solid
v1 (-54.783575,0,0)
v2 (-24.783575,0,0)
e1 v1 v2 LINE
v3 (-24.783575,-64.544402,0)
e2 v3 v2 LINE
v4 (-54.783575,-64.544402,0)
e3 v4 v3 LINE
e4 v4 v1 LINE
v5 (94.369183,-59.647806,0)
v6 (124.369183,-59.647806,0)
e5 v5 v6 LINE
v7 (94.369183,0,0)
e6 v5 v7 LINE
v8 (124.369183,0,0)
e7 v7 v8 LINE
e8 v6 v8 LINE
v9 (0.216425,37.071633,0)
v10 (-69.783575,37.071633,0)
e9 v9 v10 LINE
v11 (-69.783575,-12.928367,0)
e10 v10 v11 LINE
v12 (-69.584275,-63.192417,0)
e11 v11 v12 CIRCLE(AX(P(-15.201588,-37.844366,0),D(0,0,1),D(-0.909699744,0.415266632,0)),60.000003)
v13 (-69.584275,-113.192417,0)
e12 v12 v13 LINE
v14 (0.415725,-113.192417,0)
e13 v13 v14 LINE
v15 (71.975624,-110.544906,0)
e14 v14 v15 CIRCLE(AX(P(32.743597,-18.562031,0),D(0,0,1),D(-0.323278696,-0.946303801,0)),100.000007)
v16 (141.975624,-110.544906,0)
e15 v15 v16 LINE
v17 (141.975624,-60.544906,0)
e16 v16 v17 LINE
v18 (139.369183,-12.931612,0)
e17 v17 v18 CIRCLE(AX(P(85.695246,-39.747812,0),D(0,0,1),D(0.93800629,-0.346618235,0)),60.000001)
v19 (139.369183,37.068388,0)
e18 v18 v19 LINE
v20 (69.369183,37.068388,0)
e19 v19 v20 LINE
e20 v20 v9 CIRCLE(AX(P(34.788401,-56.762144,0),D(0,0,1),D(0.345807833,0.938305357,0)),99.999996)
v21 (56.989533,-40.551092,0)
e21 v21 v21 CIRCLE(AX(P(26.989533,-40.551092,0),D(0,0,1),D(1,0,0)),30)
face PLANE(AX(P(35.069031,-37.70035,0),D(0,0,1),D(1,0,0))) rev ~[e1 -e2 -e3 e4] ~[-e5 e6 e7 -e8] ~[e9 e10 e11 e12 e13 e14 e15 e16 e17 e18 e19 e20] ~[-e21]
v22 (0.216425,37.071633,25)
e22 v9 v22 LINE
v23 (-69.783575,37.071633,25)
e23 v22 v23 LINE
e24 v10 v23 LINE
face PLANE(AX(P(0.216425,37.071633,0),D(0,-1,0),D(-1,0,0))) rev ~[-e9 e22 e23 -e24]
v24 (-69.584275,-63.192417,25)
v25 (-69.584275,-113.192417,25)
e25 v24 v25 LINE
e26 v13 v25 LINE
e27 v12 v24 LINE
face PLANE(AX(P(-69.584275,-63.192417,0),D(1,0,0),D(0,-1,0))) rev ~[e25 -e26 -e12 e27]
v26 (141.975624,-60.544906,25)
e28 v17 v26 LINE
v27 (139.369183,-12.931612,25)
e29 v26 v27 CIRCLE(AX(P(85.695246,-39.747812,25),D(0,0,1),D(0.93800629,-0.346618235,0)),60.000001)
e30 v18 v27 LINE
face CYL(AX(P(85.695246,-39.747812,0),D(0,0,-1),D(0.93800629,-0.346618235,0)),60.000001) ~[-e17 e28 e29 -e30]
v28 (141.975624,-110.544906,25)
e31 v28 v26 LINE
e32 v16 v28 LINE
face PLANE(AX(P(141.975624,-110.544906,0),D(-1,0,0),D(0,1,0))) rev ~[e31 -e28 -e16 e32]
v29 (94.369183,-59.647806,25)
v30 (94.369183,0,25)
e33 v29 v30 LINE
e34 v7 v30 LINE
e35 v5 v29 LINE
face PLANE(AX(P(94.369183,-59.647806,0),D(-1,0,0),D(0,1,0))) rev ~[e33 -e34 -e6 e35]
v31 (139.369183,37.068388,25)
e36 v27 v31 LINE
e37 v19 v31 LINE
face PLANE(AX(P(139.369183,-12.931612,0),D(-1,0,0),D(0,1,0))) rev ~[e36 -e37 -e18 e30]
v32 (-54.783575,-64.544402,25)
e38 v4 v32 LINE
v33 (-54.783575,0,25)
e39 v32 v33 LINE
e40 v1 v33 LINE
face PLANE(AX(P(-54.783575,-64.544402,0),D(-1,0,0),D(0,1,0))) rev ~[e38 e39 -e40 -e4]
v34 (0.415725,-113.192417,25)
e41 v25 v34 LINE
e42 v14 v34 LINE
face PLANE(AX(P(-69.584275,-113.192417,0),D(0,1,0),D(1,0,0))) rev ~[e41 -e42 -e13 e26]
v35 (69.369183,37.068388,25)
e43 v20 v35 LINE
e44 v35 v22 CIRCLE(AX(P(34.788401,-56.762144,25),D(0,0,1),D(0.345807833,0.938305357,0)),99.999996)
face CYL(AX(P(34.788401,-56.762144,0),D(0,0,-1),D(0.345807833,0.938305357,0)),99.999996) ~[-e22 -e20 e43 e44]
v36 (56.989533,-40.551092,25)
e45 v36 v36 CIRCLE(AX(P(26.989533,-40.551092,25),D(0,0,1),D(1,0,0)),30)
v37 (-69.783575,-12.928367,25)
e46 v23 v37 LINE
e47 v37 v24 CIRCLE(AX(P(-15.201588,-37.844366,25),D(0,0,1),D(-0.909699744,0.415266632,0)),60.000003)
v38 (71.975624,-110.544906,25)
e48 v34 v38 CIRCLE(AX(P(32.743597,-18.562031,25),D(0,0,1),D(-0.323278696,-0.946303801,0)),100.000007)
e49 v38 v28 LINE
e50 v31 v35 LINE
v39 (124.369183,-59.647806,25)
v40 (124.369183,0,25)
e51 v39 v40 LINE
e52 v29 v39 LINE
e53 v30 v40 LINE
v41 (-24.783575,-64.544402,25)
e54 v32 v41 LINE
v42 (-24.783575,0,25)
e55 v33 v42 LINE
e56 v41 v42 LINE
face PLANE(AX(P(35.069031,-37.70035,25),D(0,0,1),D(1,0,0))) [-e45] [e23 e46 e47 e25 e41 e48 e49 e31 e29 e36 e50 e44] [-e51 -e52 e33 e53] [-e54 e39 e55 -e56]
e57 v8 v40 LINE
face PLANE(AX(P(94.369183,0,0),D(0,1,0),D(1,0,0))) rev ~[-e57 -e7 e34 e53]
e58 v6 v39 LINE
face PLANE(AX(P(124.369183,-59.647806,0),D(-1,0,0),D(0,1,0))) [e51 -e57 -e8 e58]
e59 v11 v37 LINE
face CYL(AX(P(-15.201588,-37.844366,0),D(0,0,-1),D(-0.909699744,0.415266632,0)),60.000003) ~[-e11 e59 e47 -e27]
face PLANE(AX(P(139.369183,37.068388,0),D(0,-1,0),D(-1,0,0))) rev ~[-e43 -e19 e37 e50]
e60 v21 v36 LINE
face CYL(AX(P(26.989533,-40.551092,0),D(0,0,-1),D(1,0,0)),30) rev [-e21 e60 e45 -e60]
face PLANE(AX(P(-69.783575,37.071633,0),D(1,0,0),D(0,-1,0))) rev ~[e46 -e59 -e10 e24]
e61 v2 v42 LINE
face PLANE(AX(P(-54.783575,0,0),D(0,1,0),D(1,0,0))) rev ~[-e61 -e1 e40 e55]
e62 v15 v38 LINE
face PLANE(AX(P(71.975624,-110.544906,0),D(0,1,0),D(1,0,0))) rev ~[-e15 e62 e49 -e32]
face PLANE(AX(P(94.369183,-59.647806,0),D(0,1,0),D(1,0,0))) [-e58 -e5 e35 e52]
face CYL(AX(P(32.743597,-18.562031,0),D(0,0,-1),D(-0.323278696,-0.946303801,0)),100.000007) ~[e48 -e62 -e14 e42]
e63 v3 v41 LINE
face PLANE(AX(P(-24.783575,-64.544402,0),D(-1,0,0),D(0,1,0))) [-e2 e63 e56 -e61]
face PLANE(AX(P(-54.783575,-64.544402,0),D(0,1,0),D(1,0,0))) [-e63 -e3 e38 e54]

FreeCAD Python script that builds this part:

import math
import FreeCAD as App
import Part
import Sketcher

doc = App.newDocument("Part")
body = doc.addObject("PartDesign::Body", "Body")

# Sketch on XY plane
sketch1 = doc.addObject("Sketcher::SketchObject", "Sketch")
body.addObject(sketch1)
sketch1.AttachmentSupport = (doc.XY_Plane, [""])
sketch1.MapMode = "FlatFace"
sketch1.addGeometry([
    Part.LineSegment(App.Vector(0, 37, 0), App.Vector(-70, 37, 0)),  # 0
    Part.LineSegment(App.Vector(-70, 37, 0), App.Vector(-70, -13, 0)),  # 1
    Part.ArcOfCircle(Part.Circle(App.Vector(-15, -38, 0), App.Vector(0, 0, 1), 60), math.radians(155), math.radians(205)),  # 2
    Part.LineSegment(App.Vector(-70, -63, 0), App.Vector(-70, -113, 0)),  # 3
    Part.LineSegment(App.Vector(-70, -113, 0), App.Vector(0, -113, 0)),  # 4
    Part.ArcOfCircle(Part.Circle(App.Vector(33, -19, 0), App.Vector(0, 0, 1), 100), math.radians(-109), math.radians(-67)),  # 5
    Part.LineSegment(App.Vector(72, -111, 0), App.Vector(142, -111, 0)),  # 6
    Part.LineSegment(App.Vector(142, -111, 0), App.Vector(142, -61, 0)),  # 7
    Part.ArcOfCircle(Part.Circle(App.Vector(86, -40, 0), App.Vector(0, 0, 1), 60), math.radians(-20), math.radians(27)),  # 8
    Part.LineSegment(App.Vector(139, -13, 0), App.Vector(139, 37, 0)),  # 9
    Part.LineSegment(App.Vector(139, 37, 0), App.Vector(69, 37, 0)),  # 10
    Part.ArcOfCircle(Part.Circle(App.Vector(35, -57, 0), App.Vector(0, 0, 1), 100), math.radians(70), math.radians(110)),  # 11
    Part.Circle(App.Vector(27, -41, 0), App.Vector(0, 0, 1), 30),  # 12
    Part.LineSegment(App.Vector(-25, -65, 0), App.Vector(-55, -65, 0)),  # 13
    Part.LineSegment(App.Vector(-55, -65, 0), App.Vector(-55, 0, 0)),  # 14
    Part.LineSegment(App.Vector(-55, 0, 0), App.Vector(-25, 0, 0)),  # 15
    Part.LineSegment(App.Vector(-25, 0, 0), App.Vector(-25, -65, 0)),  # 16
    Part.LineSegment(App.Vector(124, -60, 0), App.Vector(94, -60, 0)),  # 17
    Part.LineSegment(App.Vector(94, -60, 0), App.Vector(94, 0, 0)),  # 18
    Part.LineSegment(App.Vector(94, 0, 0), App.Vector(124, 0, 0)),  # 19
    Part.LineSegment(App.Vector(124, 0, 0), App.Vector(124, -60, 0)),  # 20
], False)
sketch1.addConstraint([
    Sketcher.Constraint("Coincident", 0, 2, 1, 1),
    Sketcher.Constraint("Coincident", 1, 2, 2, 1),
    Sketcher.Constraint("Coincident", 2, 2, 3, 1),
    Sketcher.Constraint("Coincident", 3, 2, 4, 1),
    Sketcher.Constraint("Coincident", 4, 2, 5, 1),
    Sketcher.Constraint("Coincident", 5, 2, 6, 1),
    Sketcher.Constraint("Coincident", 6, 2, 7, 1),
    Sketcher.Constraint("Coincident", 7, 2, 8, 1),
    Sketcher.Constraint("Coincident", 8, 2, 9, 1),
    Sketcher.Constraint("Coincident", 9, 2, 10, 1),
    Sketcher.Constraint("Coincident", 10, 2, 11, 1),
    Sketcher.Constraint("Coincident", 11, 2, 0, 1),
    Sketcher.Constraint("Coincident", 13, 2, 14, 1),
    Sketcher.Constraint("Coincident", 14, 2, 15, 1),
    Sketcher.Constraint("Coincident", 15, 2, 16, 1),
    Sketcher.Constraint("Coincident", 16, 2, 13, 1),
    Sketcher.Constraint("Coincident", 17, 2, 18, 1),
    Sketcher.Constraint("Coincident", 18, 2, 19, 1),
    Sketcher.Constraint("Coincident", 19, 2, 20, 1),
    Sketcher.Constraint("Coincident", 20, 2, 17, 1),
    Sketcher.Constraint("Horizontal", 0),
    Sketcher.Constraint("Vertical", 1),
    Sketcher.Constraint("Vertical", 3),
    Sketcher.Constraint("Horizontal", 4),
    Sketcher.Constraint("Horizontal", 6),
    Sketcher.Constraint("Vertical", 7),
    Sketcher.Constraint("Vertical", 9),
    Sketcher.Constraint("Horizontal", 10),
    Sketcher.Constraint("Horizontal", 13),
    Sketcher.Constraint("Vertical", 14),
    Sketcher.Constraint("Horizontal", 15),
    Sketcher.Constraint("Vertical", 16),
    Sketcher.Constraint("Horizontal", 17),
    Sketcher.Constraint("Vertical", 18),
    Sketcher.Constraint("Horizontal", 19),
    Sketcher.Constraint("Vertical", 20),
    Sketcher.Constraint("PointOnObject", 14, 2, -1),
    Sketcher.Constraint("PointOnObject", 18, 2, -1),
    Sketcher.Constraint("Equal", 0, 4),
    Sketcher.Constraint("Equal", 4, 6),
    Sketcher.Constraint("Equal", 6, 10),
    Sketcher.Constraint("Equal", 15, 17),
    Sketcher.Constraint("Equal", 1, 3),
    Sketcher.Constraint("Equal", 3, 7),
    Sketcher.Constraint("Equal", 7, 9),
    Sketcher.Constraint("Diameter", 12, 60.0),
    Sketcher.Constraint("Radius", 8, 60.000001),
    Sketcher.Constraint("DistanceX", 0, 2, 0, 1, 70.0),
    Sketcher.Constraint("DistanceX", 13, 2, 13, 1, 30.0),
    Sketcher.Constraint("DistanceY", 1, 2, 1, 1, 50.0),
    Sketcher.Constraint("DistanceX", 1, 2, 13, 2, 15.0),
    Sketcher.Constraint("DistanceX", 17, 2, 8, 2, 45.0),
    Sketcher.Constraint("Radius", 2, 60.000003),
    Sketcher.Constraint("Radius", 5, 100.000007),
    Sketcher.Constraint("Radius", 11, 99.999996),
    Sketcher.Constraint("DistanceY", 2, 3, 0, 2, 74.915999),
    Sketcher.Constraint("DistanceX", -1, 1, 11, 3, 34.788401),
    Sketcher.Constraint("DistanceX", 1, 2, 2, 2, 0.1993),
    Sketcher.Constraint("DistanceX", 4, 2, 5, 2, 71.559899),
    Sketcher.Constraint("DistanceY", 8, 3, 8, 2, 26.8162),
    Sketcher.Constraint("DistanceY", 7, 2, 17, 2, 0.8971),
    Sketcher.Constraint("DistanceY", 14, 1, 14, 2, 64.544402),
    Sketcher.Constraint("DistanceY", 18, 1, 18, 2, 59.647806),
    Sketcher.Constraint("DistanceY", 5, 3, -1, 1, 18.562031),
    Sketcher.Constraint("DistanceY", 8, 3, -1, 1, 39.747812),
    Sketcher.Constraint("DistanceY", 12, 3, -1, 1, 40.551092),
    Sketcher.Constraint("DistanceX", 2, 3, 12, 3, 42.191121),
])
pad1 = doc.addObject("PartDesign::Pad", "Pad")
body.addObject(pad1)
pad1.Profile = sketch1
pad1.Length = 25

doc.recompute()
